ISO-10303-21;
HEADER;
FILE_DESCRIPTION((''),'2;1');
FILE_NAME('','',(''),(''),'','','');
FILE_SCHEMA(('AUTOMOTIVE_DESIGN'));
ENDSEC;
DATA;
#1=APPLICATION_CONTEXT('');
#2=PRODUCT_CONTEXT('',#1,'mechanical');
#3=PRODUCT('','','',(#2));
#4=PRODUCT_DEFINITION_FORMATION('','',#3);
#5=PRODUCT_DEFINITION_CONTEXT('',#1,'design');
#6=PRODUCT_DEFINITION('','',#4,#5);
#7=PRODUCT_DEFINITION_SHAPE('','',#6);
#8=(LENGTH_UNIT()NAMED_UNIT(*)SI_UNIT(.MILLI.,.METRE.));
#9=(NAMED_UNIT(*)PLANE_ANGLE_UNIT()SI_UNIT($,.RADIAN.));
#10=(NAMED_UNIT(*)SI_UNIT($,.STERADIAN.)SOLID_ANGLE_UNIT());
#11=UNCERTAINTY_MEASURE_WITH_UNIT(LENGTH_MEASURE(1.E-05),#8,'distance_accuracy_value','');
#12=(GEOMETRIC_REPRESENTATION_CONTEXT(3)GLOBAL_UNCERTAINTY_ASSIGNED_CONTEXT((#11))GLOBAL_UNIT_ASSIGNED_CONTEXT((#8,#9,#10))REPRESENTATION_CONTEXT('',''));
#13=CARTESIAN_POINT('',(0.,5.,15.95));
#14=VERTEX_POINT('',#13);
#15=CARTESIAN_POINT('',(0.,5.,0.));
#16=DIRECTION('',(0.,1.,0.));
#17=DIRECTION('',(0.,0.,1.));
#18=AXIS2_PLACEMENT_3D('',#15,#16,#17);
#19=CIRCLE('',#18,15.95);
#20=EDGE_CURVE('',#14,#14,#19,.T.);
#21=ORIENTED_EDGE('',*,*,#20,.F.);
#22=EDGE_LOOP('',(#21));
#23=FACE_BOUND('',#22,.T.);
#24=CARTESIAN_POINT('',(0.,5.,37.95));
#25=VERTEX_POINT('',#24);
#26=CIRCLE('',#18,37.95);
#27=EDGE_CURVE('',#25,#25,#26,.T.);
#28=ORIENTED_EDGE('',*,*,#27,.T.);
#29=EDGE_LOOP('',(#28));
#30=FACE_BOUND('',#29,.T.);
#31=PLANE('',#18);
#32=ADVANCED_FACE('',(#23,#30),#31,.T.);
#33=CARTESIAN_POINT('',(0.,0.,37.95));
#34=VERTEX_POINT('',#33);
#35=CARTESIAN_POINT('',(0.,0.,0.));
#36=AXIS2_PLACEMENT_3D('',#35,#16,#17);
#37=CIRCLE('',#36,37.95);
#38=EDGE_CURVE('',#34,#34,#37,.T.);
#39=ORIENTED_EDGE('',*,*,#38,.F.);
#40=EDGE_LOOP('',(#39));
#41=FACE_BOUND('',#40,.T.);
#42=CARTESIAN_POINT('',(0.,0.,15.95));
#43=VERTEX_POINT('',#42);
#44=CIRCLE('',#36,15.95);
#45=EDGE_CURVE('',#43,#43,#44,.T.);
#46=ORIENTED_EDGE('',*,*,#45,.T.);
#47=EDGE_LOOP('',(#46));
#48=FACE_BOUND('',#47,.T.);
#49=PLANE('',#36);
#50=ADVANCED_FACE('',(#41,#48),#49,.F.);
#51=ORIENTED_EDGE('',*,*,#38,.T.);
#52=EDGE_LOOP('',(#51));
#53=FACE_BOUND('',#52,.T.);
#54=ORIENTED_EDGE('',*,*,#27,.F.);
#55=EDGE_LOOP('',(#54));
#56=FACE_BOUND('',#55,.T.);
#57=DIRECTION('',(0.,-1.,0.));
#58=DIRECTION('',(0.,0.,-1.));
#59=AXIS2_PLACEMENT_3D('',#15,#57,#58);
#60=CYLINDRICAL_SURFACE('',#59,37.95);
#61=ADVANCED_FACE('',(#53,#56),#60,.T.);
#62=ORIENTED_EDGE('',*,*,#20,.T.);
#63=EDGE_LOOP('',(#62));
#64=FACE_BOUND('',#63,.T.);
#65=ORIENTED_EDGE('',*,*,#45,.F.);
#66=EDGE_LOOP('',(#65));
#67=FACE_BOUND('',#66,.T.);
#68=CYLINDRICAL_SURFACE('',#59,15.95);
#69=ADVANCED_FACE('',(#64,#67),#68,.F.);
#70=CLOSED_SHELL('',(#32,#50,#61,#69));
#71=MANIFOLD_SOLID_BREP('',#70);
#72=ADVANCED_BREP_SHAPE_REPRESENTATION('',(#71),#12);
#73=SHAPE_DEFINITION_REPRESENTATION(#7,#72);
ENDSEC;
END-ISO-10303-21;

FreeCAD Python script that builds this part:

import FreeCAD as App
import Part
import Sketcher

V = App.Vector

doc = App.newDocument("Part")
body = doc.addObject("PartDesign::Body", "Body")

# Sketch on XZ plane
sketch1 = doc.addObject("Sketcher::SketchObject", "Sketch")
body.addObject(sketch1)
sketch1.AttachmentSupport = (doc.XZ_Plane, [""])
sketch1.MapMode = "FlatFace"
sketch1.addGeometry([
    Part.Circle(V(0, 0, 0), V(0, 0, 1), 37.95),
    Part.Circle(V(0, 0, 0), V(0, 0, 1), 15.95),
], False)
sketch1.addConstraint([
    Sketcher.Constraint("Coincident", 0, 3, -1, 1),
    Sketcher.Constraint("Coincident", 1, 3, -1, 1),
    Sketcher.Constraint("Diameter", 0, 75.9),
    Sketcher.Constraint("Diameter", 1, 31.9),
])
pad1 = doc.addObject("PartDesign::Pad", "Pad")
body.addObject(pad1)
pad1.Profile = sketch1
pad1.Length = 5
pad1.Reversed = True

doc.recompute()
